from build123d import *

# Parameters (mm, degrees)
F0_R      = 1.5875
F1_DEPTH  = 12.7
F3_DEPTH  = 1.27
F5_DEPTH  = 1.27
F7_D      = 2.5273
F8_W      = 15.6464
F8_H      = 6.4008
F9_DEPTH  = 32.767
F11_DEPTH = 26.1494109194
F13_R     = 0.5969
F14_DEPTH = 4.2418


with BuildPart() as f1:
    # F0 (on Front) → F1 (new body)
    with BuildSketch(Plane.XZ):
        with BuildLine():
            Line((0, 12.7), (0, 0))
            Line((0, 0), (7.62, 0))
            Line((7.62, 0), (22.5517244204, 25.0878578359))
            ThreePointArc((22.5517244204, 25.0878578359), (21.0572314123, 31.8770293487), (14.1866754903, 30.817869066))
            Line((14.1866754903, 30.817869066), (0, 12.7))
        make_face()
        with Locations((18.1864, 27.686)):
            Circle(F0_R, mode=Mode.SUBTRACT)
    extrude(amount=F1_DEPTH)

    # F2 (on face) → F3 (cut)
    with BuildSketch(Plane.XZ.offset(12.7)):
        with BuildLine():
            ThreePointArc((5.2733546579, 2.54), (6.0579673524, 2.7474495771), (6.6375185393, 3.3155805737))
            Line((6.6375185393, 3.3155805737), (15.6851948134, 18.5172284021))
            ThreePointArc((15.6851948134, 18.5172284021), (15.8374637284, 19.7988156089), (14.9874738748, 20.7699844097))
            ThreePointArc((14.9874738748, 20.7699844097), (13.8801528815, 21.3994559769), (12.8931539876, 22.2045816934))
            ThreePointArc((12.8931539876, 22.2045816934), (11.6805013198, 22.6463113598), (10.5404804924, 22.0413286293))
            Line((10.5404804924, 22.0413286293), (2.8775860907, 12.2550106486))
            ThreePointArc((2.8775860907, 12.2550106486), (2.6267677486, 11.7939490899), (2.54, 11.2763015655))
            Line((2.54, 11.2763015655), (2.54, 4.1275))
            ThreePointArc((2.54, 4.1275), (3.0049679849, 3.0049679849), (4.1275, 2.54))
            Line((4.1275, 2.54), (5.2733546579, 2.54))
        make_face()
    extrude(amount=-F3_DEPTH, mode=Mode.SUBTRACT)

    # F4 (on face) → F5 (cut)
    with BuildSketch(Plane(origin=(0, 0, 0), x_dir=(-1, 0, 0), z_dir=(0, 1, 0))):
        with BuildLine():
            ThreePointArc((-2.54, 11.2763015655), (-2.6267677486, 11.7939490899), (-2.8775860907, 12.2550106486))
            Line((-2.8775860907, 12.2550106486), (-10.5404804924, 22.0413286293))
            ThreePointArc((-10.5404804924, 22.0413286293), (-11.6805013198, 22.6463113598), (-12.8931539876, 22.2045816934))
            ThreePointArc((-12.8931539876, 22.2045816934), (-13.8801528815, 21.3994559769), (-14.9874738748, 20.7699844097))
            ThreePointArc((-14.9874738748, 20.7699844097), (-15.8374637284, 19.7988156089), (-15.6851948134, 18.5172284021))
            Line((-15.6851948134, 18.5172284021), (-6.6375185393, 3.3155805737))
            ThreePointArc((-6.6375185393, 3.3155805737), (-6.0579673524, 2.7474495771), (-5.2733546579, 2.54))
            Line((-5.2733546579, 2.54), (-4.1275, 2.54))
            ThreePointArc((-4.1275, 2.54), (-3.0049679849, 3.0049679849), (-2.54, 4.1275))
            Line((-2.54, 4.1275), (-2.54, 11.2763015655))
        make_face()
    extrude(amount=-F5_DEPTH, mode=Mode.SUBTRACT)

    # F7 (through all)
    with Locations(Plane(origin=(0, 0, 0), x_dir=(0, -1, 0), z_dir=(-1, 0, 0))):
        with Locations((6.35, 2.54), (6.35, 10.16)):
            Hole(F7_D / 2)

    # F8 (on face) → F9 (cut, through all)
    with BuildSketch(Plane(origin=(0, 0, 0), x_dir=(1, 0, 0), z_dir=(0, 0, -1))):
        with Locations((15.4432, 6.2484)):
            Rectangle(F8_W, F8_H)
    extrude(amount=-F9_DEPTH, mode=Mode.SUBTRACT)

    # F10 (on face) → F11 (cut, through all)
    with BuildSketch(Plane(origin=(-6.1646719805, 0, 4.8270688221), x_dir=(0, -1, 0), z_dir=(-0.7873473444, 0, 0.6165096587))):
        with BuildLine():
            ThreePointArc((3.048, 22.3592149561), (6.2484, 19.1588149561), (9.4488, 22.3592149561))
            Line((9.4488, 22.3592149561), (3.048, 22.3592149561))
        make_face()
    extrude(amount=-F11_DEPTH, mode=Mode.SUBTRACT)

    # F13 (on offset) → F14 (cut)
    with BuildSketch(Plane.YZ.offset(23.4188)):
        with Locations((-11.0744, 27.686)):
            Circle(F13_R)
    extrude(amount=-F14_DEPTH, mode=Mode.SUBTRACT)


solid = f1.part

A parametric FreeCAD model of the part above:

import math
import FreeCAD as App
import Part
import Sketcher
Q = App.Units.Quantity

doc = App.newDocument("Part")
body = doc.addObject("PartDesign::Body", "Body")

sketch1 = body.newObject("Sketcher::SketchObject", "Sketch")
sketch1.AttachmentSupport = (doc.getObject("XZ_Plane"), [""])
sketch1.MapMode = "FlatFace"
sketch1.addGeometry(Part.LineSegment(App.Vector(0, 12.7, 0), App.Vector(0, 0, 0)), False)
sketch1.addGeometry(Part.LineSegment(App.Vector(0, 0, 0), App.Vector(7.6, 0, 0)), False)
sketch1.addGeometry(Part.LineSegment(App.Vector(7.6, 0, 0), App.Vector(22.6, 25.1, 0)), False)
sketch1.addGeometry(Part.ArcOfCircle(Part.Circle(App.Vector(18.2, 27.7, 0), App.Vector(0, 0, 1), 5.1), math.radians(-31), math.radians(142)), False)
sketch1.addGeometry(Part.LineSegment(App.Vector(14.2, 30.8, 0), App.Vector(0, 12.7, 0)), False)
sketch1.addGeometry(Part.Circle(App.Vector(18.2, 27.7, 0), App.Vector(0, 0, 1), 1.6), False)
sketch1.addConstraint(Sketcher.Constraint("Coincident", 0, 2, 1, 1))
sketch1.addConstraint(Sketcher.Constraint("Coincident", 1, 2, 2, 1))
sketch1.addConstraint(Sketcher.Constraint("Tangent", 2, 2, 3, 1))
sketch1.addConstraint(Sketcher.Constraint("Tangent", 3, 2, 4, 1))
sketch1.addConstraint(Sketcher.Constraint("Coincident", 4, 2, 0, 1))
sketch1.addConstraint(Sketcher.Constraint("Vertical", 0))
sketch1.addConstraint(Sketcher.Constraint("Horizontal", 1))
sketch1.addConstraint(Sketcher.Constraint("Coincident", 0, 2, -1, 1))
sketch1.addConstraint(Sketcher.Constraint("Coincident", 5, 3, 3, 3))
sketch1.addConstraint(Sketcher.Constraint("Radius", 3, Q("0.2 in")))
sketch1.addConstraint(Sketcher.Constraint("Diameter", 5, Q("0.125 in")))
sketch1.addConstraint(Sketcher.Constraint("DistanceX", 1, 1, 1, 2, Q("0.3 in")))
sketch1.addConstraint(Sketcher.Constraint("DistanceY", 0, 2, 0, 1, Q("0.5 in")))
sketch1.addConstraint(Sketcher.Constraint("DistanceY", -1, 1, 3, 3, Q("1.09 in")))
sketch1.addConstraint(Sketcher.Constraint("DistanceX", -1, 1, 3, 3, Q("0.716 in")))
pad1 = body.newObject("PartDesign::Pad", "Pad")
pad1.Profile = sketch1
pad1.Length = Q("0.5 in")

sketch2 = body.newObject("Sketcher::SketchObject", "Sketch001")
sketch2.AttachmentSupport = (doc.getObject("XZ_Plane"), [""])
sketch2.MapMode = "FlatFace"
sketch2.AttachmentOffset = App.Placement(App.Vector(0, 0, 0.5 * 25.4), App.Rotation())
sketch2.addGeometry(Part.ArcOfCircle(Part.Circle(App.Vector(5.3, 4.1, 0), App.Vector(0, 0, 1), 1.6), math.radians(-90), math.radians(-31)), False)
sketch2.addGeometry(Part.LineSegment(App.Vector(6.6, 3.3, 0), App.Vector(15.7, 18.5, 0)), False)
sketch2.addGeometry(Part.ArcOfCircle(Part.Circle(App.Vector(14.3, 19.3, 0), App.Vector(0, 0, 1), 1.6), math.radians(-31), math.radians(65)), False)
sketch2.addGeometry(Part.ArcOfCircle(Part.Circle(App.Vector(18.2, 27.7, 0), App.Vector(0, 0, 1), 7.6), math.radians(-134), math.radians(-114.82)), False)
sketch2.addGeometry(Part.ArcOfCircle(Part.Circle(App.Vector(11.8, 21.1, 0), App.Vector(0, 0, 1), 1.6), math.radians(46), math.radians(142)), False)
sketch2.addGeometry(Part.LineSegment(App.Vector(10.5, 22, 0), App.Vector(2.9, 12.3, 0)), False)
sketch2.addGeometry(Part.ArcOfCircle(Part.Circle(App.Vector(4.1, 11.3, 0), App.Vector(0, 0, 1), 1.6), math.radians(142), math.radians(180)), False)
sketch2.addGeometry(Part.LineSegment(App.Vector(2.5, 11.3, 0), App.Vector(2.5, 4.1, 0)), False)
sketch2.addGeometry(Part.ArcOfCircle(Part.Circle(App.Vector(4.1, 4.1, 0), App.Vector(0, 0, 1), 1.6), math.radians(180), math.radians(270)), False)
sketch2.addGeometry(Part.LineSegment(App.Vector(4.1, 2.5, 0), App.Vector(5.3, 2.5, 0)), False)
sketch2.addConstraint(Sketcher.Constraint("Tangent", 0, 2, 1, 1))
sketch2.addConstraint(Sketcher.Constraint("Tangent", 1, 2, 2, 1))
sketch2.addConstraint(Sketcher.Constraint("Tangent", 2, 2, 3, 2))
sketch2.addConstraint(Sketcher.Constraint("Tangent", 3, 1, 4, 1))
sketch2.addConstraint(Sketcher.Constraint("Tangent", 4, 2, 5, 1))
sketch2.addConstraint(Sketcher.Constraint("Tangent", 5, 2, 6, 1))
sketch2.addConstraint(Sketcher.Constraint("Tangent", 6, 2, 7, 1))
sketch2.addConstraint(Sketcher.Constraint("Tangent", 7, 2, 8, 1))
sketch2.addConstraint(Sketcher.Constraint("Tangent", 8, 2, 9, 1))
sketch2.addConstraint(Sketcher.Constraint("Tangent", 9, 2, 0, 1))
sketch2.addConstraint(Sketcher.Constraint("Vertical", 7))
sketch2.addConstraint(Sketcher.Constraint("Horizontal", 9))
sketch2.addConstraint(Sketcher.Constraint("Equal", 0, 2))
sketch2.addConstraint(Sketcher.Constraint("Equal", 2, 4))
sketch2.addConstraint(Sketcher.Constraint("Equal", 4, 6))
sketch2.addConstraint(Sketcher.Constraint("Equal", 6, 8))
sketch2.addConstraint(Sketcher.Constraint("Radius", 3, Q("0.3 in")))
sketch2.addConstraint(Sketcher.Constraint("Radius", 0, Q("0.0625 in")))
sketch2.addConstraint(Sketcher.Constraint("DistanceX", -1, 1, 6, 2, Q("0.1 in")))
sketch2.addConstraint(Sketcher.Constraint("DistanceY", -1, 1, 8, 2, Q("0.1 in")))
sketch2.addConstraint(Sketcher.Constraint("DistanceY", -1, 1, 3, 3, Q("1.09 in")))
sketch2.addConstraint(Sketcher.Constraint("DistanceX", -1, 1, 3, 3, Q("0.716 in")))
sketch2.addConstraint(Sketcher.Constraint("DistanceY", 7, 2, 7, 1, 7.148802))
sketch2.addConstraint(Sketcher.Constraint("DistanceX", 4, 3, 1, 2, 3.8948))
sketch2.addConstraint(Sketcher.Constraint("DistanceY", 1, 2, 4, 2, 3.5241))
sketch2.addConstraint(Sketcher.Constraint("Distance", 1, 17.690408))
pocket1 = body.newObject("PartDesign::Pocket", "Pocket")
pocket1.Profile = sketch2
pocket1.Length = Q("0.05 in")

sketch3 = body.newObject("Sketcher::SketchObject", "Sketch002")
sketch3.AttachmentSupport = (doc.getObject("XZ_Plane"), [""])
sketch3.MapMode = "FlatFace"
sketch3.addGeometry(Part.ArcOfCircle(Part.Circle(App.Vector(4.1, 11.3, 0), App.Vector(0, 0, 1), 1.6), math.radians(142), math.radians(180)), False)
sketch3.addGeometry(Part.LineSegment(App.Vector(2.9, 12.3, 0), App.Vector(10.5, 22, 0)), False)
sketch3.addGeometry(Part.ArcOfCircle(Part.Circle(App.Vector(11.8, 21.1, 0), App.Vector(0, 0, 1), 1.6), math.radians(46), math.radians(142)), False)
sketch3.addGeometry(Part.ArcOfCircle(Part.Circle(App.Vector(18.2, 27.7, 0), App.Vector(0, 0, 1), 7.6), math.radians(-134), math.radians(-114.82)), False)
sketch3.addGeometry(Part.ArcOfCircle(Part.Circle(App.Vector(14.3, 19.3, 0), App.Vector(0, 0, 1), 1.6), math.radians(-31), math.radians(65)), False)
sketch3.addGeometry(Part.LineSegment(App.Vector(15.7, 18.5, 0), App.Vector(6.6, 3.3, 0)), False)
sketch3.addGeometry(Part.ArcOfCircle(Part.Circle(App.Vector(5.3, 4.1, 0), App.Vector(0, 0, 1), 1.6), math.radians(-90), math.radians(-31)), False)
sketch3.addGeometry(Part.LineSegment(App.Vector(5.3, 2.5, 0), App.Vector(4.1, 2.5, 0)), False)
sketch3.addGeometry(Part.ArcOfCircle(Part.Circle(App.Vector(4.1, 4.1, 0), App.Vector(0, 0, 1), 1.6), math.radians(180), math.radians(270)), False)
sketch3.addGeometry(Part.LineSegment(App.Vector(2.5, 4.1, 0), App.Vector(2.5, 11.3, 0)), False)
sketch3.addConstraint(Sketcher.Constraint("Tangent", 0, 1, 1, 1))
sketch3.addConstraint(Sketcher.Constraint("Tangent", 1, 2, 2, 2))
sketch3.addConstraint(Sketcher.Constraint("Tangent", 2, 1, 3, 1))
sketch3.addConstraint(Sketcher.Constraint("Tangent", 3, 2, 4, 2))
sketch3.addConstraint(Sketcher.Constraint("Tangent", 4, 1, 5, 1))
sketch3.addConstraint(Sketcher.Constraint("Tangent", 5, 2, 6, 2))
sketch3.addConstraint(Sketcher.Constraint("Tangent", 6, 1, 7, 1))
sketch3.addConstraint(Sketcher.Constraint("Tangent", 7, 2, 8, 2))
sketch3.addConstraint(Sketcher.Constraint("Tangent", 8, 1, 9, 1))
sketch3.addConstraint(Sketcher.Constraint("Tangent", 9, 2, 0, 2))
sketch3.addConstraint(Sketcher.Constraint("Horizontal", 7))
sketch3.addConstraint(Sketcher.Constraint("Vertical", 9))
sketch3.addConstraint(Sketcher.Constraint("Equal", 0, 2))
sketch3.addConstraint(Sketcher.Constraint("Equal", 2, 4))
sketch3.addConstraint(Sketcher.Constraint("Equal", 4, 6))
sketch3.addConstraint(Sketcher.Constraint("Equal", 6, 8))
sketch3.addConstraint(Sketcher.Constraint("Radius", 3, Q("0.3 in")))
sketch3.addConstraint(Sketcher.Constraint("Radius", 0, Q("0.0625 in")))
sketch3.addConstraint(Sketcher.Constraint("DistanceY", -1, 1, 6, 1, Q("0.1 in")))
sketch3.addConstraint(Sketcher.Constraint("DistanceX", -1, 1, 8, 1, Q("0.1 in")))
sketch3.addConstraint(Sketcher.Constraint("DistanceY", -1, 1, 3, 3, Q("1.09 in")))
sketch3.addConstraint(Sketcher.Constraint("DistanceX", -1, 1, 3, 3, Q("0.716 in")))
sketch3.addConstraint(Sketcher.Constraint("DistanceY", 9, 1, 9, 2, 7.148802))
sketch3.addConstraint(Sketcher.Constraint("DistanceX", 2, 3, 4, 1, 3.8948))
sketch3.addConstraint(Sketcher.Constraint("DistanceY", 4, 1, 1, 2, 3.5241))
sketch3.addConstraint(Sketcher.Constraint("Distance", 1, 12.42948))
pocket2 = body.newObject("PartDesign::Pocket", "Pocket001")
pocket2.Profile = sketch3
pocket2.Length = Q("0.05 in")
pocket2.Reversed = True

sketch4 = body.newObject("Sketcher::SketchObject", "Sketch003")
sketch4.AttachmentSupport = (doc.getObject("YZ_Plane"), [""])
sketch4.MapMode = "FlatFace"
sketch4.addGeometry(Part.Circle(App.Vector(-6.3, 2.5, 0), App.Vector(0, 0, 1), 1.3), False)
sketch4.addGeometry(Part.Circle(App.Vector(-6.3, 10.2, 0), App.Vector(0, 0, 1), 1.3), False)
sketch4.addConstraint(Sketcher.Constraint("Equal", 0, 1))
sketch4.addConstraint(Sketcher.Constraint("Vertical", 0, 3, 1, 3))
sketch4.addConstraint(Sketcher.Constraint("Diameter", 0, Q("0.0995 in")))
sketch4.addConstraint(Sketcher.Constraint("DistanceY", -1, 1, 0, 3, Q("0.1 in")))
sketch4.addConstraint(Sketcher.Constraint("DistanceY", -1, 1, 1, 3, Q("0.4 in")))
sketch4.addConstraint(Sketcher.Constraint("DistanceX", 0, 3, -1, 1, Q("0.25 in")))
doc.recompute()
hole = body.newObject("PartDesign::Hole", "Hole")
hole.Profile = sketch4
hole.ThreadType = "None"
hole.Diameter = Q("0.0995 in")
hole.DepthType = "ThroughAll"
hole.Reversed = True

sketch5 = body.newObject("Sketcher::SketchObject", "Sketch004")
sketch5.AttachmentSupport = (doc.getObject("XY_Plane"), [""])
sketch5.MapMode = "FlatFace"
sketch5.addGeometry(Part.LineSegment(App.Vector(8, -9, 0), App.Vector(8, -3, 0)), False)
sketch5.addGeometry(Part.LineSegment(App.Vector(8, -3, 0), App.Vector(23, -3, 0)), False)
sketch5.addGeometry(Part.LineSegment(App.Vector(23, -3, 0), App.Vector(23, -9, 0)), False)
sketch5.addGeometry(Part.LineSegment(App.Vector(23, -9, 0), App.Vector(8, -9, 0)), False)
sketch5.addConstraint(Sketcher.Constraint("Coincident", 0, 2, 1, 1))
sketch5.addConstraint(Sketcher.Constraint("Coincident", 1, 2, 2, 1))
sketch5.addConstraint(Sketcher.Constraint("Coincident", 2, 2, 3, 1))
sketch5.addConstraint(Sketcher.Constraint("Coincident", 3, 2, 0, 1))
sketch5.addConstraint(Sketcher.Constraint("Vertical", 0))
sketch5.addConstraint(Sketcher.Constraint("Horizontal", 1))
sketch5.addConstraint(Sketcher.Constraint("Vertical", 2))
sketch5.addConstraint(Sketcher.Constraint("Horizontal", 3))
sketch5.addConstraint(Sketcher.Constraint("DistanceX", -1, 1, 0, 2, Q("0.3 in")))
sketch5.addConstraint(Sketcher.Constraint("DistanceX", 1, 1, 1, 2, Q("0.616 in")))
sketch5.addConstraint(Sketcher.Constraint("DistanceY", 0, 1, 0, 2, Q("0.252 in")))
sketch5.addConstraint(Sketcher.Constraint("DistanceY", 0, 2, -1, 1, Q("0.12 in")))
pocket3 = body.newObject("PartDesign::Pocket", "Pocket002")
pocket3.Profile = sketch5
pocket3.Type = "ThroughAll"
pocket3.Reversed = True

sketch6 = body.newObject("Sketcher::SketchObject", "Sketch005")
sketch6.Placement = App.Placement(App.Vector(-6.164672, 0, 4.827069), App.Rotation(App.Vector(0, -1, 0), App.Vector(0.616509659, 0, 0.787347344), App.Vector(-0.787347344, 0, 0.616509659), "ZXY"))
sketch6.addGeometry(Part.ArcOfCircle(Part.Circle(App.Vector(6.2, 22.4, 0), App.Vector(0, 0, 1), 3.2), math.radians(180), math.radians(360)), False)
sketch6.addGeometry(Part.LineSegment(App.Vector(9.4, 22.4, 0), App.Vector(3, 22.4, 0)), False)
sketch6.addConstraint(Sketcher.Constraint("Coincident", 0, 1, 1, 2))
sketch6.addConstraint(Sketcher.Constraint("Coincident", 1, 1, 0, 2))
sketch6.addConstraint(Sketcher.Constraint("Horizontal", 1))
sketch6.addConstraint(Sketcher.Constraint("Radius", 0, Q("0.126 in")))
sketch6.addConstraint(Sketcher.Constraint("DistanceX", -1, 1, 0, 1, Q("0.12 in")))
sketch6.addConstraint(Sketcher.Constraint("DistanceY", -1, 1, 0, 3, 22.359215))
sketch6.addConstraint(Sketcher.Constraint("DistanceY", -1, 1, 0, 1, 22.359215))
pocket4 = body.newObject("PartDesign::Pocket", "Pocket003")
pocket4.Profile = sketch6
pocket4.Type = "ThroughAll"

sketch7 = body.newObject("Sketcher::SketchObject", "Sketch006")
sketch7.AttachmentSupport = (doc.getObject("YZ_Plane"), [""])
sketch7.MapMode = "FlatFace"
sketch7.AttachmentOffset = App.Placement(App.Vector(0, 0, 0.922 * 25.4), App.Rotation())
sketch7.addGeometry(Part.Circle(App.Vector(-11.1, 27.7, 0), App.Vector(0, 0, 1), 0.6), False)
sketch7.addConstraint(Sketcher.Constraint("Diameter", 0, Q("0.047 in")))
sketch7.addConstraint(Sketcher.Constraint("DistanceY", -1, 1, 0, 3, Q("1.09 in")))
sketch7.addConstraint(Sketcher.Constraint("DistanceX", 0, 3, -1, 1, Q("0.436 in")))
pocket5 = body.newObject("PartDesign::Pocket", "Pocket004")
pocket5.Profile = sketch7
pocket5.Length = Q("0.167 in")

doc.recompute()
